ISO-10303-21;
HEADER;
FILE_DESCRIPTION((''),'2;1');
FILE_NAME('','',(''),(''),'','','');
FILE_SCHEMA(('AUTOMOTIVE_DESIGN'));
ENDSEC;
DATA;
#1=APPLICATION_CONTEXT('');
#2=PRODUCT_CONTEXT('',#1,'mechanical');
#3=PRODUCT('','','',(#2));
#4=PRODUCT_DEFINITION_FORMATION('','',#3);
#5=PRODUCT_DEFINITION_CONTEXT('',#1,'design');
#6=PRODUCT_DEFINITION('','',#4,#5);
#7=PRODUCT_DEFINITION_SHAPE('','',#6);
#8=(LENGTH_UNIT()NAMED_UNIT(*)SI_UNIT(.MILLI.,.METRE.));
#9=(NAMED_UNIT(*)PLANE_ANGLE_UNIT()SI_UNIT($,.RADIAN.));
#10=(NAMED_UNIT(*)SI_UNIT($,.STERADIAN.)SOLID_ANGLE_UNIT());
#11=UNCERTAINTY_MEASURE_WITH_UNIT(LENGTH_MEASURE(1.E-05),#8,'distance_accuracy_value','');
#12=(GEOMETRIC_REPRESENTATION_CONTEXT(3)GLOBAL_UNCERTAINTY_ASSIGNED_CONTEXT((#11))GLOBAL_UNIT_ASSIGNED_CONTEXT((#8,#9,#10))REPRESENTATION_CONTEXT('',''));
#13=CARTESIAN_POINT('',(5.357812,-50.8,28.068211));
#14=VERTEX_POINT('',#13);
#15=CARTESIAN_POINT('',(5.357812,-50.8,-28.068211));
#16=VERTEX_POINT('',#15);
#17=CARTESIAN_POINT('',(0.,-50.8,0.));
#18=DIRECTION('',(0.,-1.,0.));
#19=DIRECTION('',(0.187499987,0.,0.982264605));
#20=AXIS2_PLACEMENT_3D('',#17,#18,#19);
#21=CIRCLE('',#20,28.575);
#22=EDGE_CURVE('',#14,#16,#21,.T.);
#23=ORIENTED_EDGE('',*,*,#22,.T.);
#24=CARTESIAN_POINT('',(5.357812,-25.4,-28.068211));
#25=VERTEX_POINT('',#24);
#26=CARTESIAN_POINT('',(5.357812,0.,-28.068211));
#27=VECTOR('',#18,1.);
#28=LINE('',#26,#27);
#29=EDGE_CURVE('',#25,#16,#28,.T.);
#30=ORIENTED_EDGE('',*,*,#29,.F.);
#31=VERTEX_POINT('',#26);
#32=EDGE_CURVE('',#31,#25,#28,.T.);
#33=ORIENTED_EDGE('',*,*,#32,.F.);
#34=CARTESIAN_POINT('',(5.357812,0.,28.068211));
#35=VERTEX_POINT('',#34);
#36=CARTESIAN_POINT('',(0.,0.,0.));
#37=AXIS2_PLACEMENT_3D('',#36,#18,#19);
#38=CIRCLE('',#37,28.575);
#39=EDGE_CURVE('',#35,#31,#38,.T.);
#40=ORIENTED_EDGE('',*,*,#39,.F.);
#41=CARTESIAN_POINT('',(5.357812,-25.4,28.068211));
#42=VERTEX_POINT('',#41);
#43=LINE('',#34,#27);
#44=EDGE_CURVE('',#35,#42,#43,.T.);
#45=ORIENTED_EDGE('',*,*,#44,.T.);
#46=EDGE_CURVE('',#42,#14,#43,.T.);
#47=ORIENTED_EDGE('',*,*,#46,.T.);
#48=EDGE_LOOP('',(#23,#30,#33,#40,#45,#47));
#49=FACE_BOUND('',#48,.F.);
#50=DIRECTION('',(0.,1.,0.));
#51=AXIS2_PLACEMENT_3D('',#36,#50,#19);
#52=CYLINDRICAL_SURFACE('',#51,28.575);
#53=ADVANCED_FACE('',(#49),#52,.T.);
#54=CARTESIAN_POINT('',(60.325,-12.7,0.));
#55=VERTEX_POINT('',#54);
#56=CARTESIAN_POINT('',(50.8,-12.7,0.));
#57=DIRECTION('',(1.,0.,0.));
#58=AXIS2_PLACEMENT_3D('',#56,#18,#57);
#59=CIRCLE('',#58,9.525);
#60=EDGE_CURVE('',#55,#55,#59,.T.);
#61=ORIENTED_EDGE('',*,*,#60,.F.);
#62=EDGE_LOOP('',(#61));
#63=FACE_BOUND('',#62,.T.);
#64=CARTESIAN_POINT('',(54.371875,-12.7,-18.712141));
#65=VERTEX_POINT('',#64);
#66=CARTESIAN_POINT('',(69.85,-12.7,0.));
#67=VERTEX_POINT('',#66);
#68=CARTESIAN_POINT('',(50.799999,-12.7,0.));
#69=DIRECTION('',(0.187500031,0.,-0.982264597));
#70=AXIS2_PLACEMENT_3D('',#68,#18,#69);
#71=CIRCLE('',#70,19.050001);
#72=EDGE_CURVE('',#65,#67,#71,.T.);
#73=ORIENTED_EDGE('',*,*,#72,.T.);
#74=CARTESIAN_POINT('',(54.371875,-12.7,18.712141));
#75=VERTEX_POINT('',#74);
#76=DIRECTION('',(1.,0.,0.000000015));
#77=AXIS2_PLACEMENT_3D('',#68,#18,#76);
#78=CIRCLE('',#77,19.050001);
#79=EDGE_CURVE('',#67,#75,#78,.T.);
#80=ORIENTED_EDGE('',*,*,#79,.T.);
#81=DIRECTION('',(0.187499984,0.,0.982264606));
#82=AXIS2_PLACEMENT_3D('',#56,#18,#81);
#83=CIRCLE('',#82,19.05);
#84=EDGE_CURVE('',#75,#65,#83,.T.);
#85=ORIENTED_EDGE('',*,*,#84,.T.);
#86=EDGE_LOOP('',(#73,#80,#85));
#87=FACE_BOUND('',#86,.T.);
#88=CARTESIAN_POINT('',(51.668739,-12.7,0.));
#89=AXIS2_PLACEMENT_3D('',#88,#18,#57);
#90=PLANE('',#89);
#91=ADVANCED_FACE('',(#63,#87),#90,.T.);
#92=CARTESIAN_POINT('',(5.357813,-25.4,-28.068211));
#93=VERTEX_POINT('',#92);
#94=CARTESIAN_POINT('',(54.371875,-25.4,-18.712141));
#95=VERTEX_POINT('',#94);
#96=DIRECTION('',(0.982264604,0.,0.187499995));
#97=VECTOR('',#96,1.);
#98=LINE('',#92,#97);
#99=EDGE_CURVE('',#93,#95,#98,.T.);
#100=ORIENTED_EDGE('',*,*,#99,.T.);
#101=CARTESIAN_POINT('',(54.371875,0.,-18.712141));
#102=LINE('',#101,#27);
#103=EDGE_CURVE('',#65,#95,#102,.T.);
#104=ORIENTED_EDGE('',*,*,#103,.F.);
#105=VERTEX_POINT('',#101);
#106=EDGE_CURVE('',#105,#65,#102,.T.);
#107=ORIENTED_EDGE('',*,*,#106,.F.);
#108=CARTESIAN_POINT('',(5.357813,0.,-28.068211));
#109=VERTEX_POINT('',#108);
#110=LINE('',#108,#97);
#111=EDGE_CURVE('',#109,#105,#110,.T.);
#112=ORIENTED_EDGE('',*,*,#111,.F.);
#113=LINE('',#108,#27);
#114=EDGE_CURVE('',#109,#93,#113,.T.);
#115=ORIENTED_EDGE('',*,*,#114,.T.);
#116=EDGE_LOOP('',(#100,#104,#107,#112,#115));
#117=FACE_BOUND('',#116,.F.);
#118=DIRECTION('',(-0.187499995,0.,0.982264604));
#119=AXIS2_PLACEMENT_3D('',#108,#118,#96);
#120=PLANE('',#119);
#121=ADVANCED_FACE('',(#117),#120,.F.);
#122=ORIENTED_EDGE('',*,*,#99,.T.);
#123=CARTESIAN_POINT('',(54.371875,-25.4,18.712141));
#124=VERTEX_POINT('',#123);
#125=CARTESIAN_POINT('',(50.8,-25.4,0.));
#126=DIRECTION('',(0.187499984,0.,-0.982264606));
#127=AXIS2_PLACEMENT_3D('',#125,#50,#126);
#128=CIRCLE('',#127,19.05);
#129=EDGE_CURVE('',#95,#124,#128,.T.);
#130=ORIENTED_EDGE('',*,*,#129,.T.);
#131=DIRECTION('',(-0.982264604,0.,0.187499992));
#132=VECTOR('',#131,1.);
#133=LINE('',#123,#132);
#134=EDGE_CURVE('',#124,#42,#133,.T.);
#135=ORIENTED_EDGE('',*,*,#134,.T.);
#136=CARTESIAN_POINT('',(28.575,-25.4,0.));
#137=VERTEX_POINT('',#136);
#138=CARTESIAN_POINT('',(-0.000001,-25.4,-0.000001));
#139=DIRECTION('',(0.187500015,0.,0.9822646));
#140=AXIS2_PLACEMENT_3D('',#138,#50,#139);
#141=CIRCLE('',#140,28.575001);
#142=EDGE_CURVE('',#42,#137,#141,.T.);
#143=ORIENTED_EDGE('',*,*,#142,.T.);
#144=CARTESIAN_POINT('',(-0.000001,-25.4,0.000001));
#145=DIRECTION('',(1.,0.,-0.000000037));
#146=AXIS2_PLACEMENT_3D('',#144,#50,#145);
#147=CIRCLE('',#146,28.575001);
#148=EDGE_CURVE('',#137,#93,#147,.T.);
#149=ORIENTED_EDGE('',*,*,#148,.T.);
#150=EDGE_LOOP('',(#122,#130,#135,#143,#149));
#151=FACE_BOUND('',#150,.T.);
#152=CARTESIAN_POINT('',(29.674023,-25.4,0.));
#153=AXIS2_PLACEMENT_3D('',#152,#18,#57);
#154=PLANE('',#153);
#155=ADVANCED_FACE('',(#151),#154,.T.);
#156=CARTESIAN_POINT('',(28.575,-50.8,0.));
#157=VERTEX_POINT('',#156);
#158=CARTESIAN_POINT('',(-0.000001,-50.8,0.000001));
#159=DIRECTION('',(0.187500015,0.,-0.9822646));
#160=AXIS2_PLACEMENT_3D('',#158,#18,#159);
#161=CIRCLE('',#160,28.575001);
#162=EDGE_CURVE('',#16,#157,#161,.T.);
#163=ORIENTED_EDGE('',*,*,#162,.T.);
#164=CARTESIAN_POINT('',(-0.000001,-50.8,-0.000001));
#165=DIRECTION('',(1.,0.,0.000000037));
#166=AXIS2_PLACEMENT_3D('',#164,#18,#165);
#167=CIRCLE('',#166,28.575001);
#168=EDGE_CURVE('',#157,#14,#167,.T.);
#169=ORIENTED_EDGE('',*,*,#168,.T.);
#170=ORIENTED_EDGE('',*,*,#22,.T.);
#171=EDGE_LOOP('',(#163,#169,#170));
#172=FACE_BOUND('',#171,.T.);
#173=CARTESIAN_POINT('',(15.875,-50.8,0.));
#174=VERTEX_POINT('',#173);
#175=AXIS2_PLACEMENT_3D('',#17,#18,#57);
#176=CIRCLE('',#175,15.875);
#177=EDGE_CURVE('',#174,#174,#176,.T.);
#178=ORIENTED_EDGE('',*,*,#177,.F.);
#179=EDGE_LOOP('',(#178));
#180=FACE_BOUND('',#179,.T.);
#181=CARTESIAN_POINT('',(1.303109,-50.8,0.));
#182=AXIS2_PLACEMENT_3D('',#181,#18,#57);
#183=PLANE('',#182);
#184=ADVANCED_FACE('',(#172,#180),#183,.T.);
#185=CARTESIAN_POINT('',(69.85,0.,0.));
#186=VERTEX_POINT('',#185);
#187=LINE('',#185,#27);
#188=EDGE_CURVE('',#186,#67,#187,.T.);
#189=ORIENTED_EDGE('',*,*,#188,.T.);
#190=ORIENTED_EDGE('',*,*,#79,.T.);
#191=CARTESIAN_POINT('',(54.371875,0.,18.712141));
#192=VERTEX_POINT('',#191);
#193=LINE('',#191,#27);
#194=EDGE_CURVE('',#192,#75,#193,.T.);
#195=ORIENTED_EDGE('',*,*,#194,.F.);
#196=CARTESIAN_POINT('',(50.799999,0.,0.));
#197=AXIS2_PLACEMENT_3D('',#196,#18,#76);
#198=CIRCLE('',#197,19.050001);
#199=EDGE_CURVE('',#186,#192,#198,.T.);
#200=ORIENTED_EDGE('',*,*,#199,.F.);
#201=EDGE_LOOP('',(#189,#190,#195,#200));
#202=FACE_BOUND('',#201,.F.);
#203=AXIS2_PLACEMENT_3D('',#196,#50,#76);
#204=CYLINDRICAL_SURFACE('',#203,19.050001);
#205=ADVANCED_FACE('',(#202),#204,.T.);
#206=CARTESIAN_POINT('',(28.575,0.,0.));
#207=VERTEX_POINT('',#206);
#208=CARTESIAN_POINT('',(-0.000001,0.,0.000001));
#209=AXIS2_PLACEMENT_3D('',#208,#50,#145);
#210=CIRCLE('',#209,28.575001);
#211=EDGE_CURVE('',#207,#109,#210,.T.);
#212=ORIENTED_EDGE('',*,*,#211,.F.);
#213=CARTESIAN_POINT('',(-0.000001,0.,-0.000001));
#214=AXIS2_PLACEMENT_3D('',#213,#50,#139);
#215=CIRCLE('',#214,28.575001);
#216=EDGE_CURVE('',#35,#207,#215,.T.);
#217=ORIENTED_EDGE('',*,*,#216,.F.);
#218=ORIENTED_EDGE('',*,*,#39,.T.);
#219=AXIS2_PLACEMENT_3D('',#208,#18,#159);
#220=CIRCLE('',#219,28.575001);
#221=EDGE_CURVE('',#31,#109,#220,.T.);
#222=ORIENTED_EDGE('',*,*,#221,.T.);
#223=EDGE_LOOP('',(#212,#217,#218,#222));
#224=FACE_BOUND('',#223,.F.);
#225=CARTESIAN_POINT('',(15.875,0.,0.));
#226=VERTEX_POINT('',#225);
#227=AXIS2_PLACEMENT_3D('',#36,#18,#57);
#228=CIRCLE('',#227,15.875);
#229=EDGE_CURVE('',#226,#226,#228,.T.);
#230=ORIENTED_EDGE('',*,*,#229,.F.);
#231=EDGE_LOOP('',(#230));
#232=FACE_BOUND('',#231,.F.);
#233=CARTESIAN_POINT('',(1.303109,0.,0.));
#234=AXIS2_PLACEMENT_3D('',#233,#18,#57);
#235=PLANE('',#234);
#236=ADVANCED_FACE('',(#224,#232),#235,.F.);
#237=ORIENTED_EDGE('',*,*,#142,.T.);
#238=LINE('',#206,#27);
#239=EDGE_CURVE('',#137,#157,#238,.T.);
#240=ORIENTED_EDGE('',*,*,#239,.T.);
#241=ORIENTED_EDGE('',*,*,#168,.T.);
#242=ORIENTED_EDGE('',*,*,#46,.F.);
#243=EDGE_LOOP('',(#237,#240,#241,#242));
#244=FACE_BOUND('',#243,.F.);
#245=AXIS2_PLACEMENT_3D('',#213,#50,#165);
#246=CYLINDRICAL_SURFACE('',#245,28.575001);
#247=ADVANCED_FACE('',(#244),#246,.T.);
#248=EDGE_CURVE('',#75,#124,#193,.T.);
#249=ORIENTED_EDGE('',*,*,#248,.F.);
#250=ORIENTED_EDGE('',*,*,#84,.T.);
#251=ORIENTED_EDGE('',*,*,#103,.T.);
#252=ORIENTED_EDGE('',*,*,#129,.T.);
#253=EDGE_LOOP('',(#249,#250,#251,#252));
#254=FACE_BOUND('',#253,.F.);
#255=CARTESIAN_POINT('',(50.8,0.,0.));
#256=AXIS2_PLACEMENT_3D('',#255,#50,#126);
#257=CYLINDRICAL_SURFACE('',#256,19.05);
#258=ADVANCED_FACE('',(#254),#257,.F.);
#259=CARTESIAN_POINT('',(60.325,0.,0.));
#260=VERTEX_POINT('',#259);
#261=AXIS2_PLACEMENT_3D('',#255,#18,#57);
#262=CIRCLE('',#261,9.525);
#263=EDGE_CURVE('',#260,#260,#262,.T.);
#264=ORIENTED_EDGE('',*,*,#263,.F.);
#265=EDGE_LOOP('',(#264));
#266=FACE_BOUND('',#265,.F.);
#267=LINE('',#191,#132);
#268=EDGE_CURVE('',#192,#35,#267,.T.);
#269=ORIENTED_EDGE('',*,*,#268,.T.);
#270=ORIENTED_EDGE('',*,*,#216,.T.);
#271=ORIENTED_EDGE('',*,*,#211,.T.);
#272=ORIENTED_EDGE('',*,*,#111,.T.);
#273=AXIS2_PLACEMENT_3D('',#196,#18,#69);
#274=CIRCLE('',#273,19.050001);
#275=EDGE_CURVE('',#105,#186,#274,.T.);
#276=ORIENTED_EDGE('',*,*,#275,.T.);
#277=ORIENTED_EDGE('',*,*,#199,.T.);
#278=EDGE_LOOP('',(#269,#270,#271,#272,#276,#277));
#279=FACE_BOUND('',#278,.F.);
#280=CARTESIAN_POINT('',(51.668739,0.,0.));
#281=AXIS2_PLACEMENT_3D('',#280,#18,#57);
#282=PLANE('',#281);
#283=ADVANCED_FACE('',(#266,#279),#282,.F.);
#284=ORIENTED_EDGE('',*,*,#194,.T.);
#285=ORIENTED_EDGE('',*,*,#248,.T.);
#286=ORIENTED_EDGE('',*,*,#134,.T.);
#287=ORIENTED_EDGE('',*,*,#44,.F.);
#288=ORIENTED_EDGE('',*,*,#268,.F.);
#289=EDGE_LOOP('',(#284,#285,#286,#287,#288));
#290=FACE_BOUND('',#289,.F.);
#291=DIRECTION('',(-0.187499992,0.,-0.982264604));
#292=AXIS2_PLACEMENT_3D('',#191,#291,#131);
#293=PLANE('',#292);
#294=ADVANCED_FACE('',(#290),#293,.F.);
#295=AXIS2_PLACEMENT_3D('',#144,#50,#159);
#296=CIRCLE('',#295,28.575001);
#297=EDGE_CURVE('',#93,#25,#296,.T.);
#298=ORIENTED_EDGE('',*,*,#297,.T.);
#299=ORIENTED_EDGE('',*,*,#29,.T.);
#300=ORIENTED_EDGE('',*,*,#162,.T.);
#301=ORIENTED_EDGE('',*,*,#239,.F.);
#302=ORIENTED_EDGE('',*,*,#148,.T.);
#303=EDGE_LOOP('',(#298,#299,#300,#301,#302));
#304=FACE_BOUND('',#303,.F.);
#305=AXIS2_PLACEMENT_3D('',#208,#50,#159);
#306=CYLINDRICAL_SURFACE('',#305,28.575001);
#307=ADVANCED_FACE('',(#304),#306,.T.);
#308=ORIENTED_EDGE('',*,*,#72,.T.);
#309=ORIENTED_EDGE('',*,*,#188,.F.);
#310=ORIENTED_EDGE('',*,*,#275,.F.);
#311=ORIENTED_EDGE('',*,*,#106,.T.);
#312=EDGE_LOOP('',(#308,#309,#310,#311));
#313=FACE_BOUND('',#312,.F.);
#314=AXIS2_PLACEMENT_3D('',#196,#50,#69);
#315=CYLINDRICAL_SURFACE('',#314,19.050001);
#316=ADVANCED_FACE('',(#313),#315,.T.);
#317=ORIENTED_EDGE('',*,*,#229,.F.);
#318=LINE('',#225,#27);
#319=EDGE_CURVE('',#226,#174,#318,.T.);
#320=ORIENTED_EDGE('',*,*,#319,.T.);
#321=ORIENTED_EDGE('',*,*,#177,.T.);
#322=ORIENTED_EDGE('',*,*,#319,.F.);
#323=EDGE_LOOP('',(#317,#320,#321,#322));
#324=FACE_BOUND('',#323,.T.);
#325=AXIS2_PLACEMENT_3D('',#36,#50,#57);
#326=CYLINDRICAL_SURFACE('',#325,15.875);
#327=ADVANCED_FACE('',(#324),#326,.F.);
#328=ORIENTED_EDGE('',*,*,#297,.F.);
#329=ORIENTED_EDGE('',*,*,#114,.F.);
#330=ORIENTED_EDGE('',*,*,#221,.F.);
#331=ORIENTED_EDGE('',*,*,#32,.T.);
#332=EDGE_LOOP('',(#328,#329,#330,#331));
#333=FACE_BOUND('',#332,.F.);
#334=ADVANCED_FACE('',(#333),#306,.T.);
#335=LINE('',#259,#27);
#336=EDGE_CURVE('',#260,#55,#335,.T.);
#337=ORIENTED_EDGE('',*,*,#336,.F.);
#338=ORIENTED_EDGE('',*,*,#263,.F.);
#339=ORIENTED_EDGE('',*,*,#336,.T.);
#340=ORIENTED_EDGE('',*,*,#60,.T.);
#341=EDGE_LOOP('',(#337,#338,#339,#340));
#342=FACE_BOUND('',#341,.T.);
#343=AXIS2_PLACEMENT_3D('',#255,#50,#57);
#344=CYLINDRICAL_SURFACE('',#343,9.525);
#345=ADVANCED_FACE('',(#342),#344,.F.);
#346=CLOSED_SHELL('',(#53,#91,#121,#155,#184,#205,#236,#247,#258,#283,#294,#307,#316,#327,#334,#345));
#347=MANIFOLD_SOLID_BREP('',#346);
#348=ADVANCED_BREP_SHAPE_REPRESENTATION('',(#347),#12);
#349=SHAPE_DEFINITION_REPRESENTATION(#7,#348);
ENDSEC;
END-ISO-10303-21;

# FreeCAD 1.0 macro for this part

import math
import FreeCAD as App
import Part
import Sketcher
from FreeCAD import Vector
Q = App.Units.Quantity

doc = App.newDocument("Part")
body = doc.addObject("PartDesign::Body", "Body")

sketch1 = doc.addObject("Sketcher::SketchObject", "Sketch")
body.addObject(sketch1)
sketch1.AttachmentSupport = (doc.XZ_Plane, [""])
sketch1.MapMode = "FlatFace"
sketch1.addGeometry(Part.ArcOfCircle(Part.Circle(Vector(-0.000001, -0.000001, 0), Vector(0, 0, 1), 28.575001), math.radians(0.000002), math.radians(79.193076)), False)
sketch1.addGeometry(Part.ArcOfCircle(Part.Circle(Vector(-0.000001, 0.000001, 0), Vector(0, 0, 1), 28.575001), math.radians(-79.193074), math.radians(-0.000002)), False)
sketch1.addGeometry(Part.LineSegment(Vector(5.357813, -28.068211, 0), Vector(54.371875, -18.712141, 0)), False)
sketch1.addGeometry(Part.ArcOfCircle(Part.Circle(Vector(50.8, 0, 0), Vector(0, 0, 1), 19.05), math.radians(79.193078), math.radians(280.806922)), False)
sketch1.addGeometry(Part.LineSegment(Vector(54.371875, 18.712141, 0), Vector(5.357812, 28.068211, 0)), False)
sketch1.addConstraint(Sketcher.Constraint("Tangent", 0, 1, 1, 2))
sketch1.addConstraint(Sketcher.Constraint("Tangent", 1, 1, 2, 1))
sketch1.addConstraint(Sketcher.Constraint("Tangent", 2, 2, 3, 2))
sketch1.addConstraint(Sketcher.Constraint("Tangent", 3, 1, 4, 1))
sketch1.addConstraint(Sketcher.Constraint("Tangent", 4, 2, 0, 2))
sketch1.addConstraint(Sketcher.Constraint("Coincident", 0, 3, -1, 1))
sketch1.addConstraint(Sketcher.Constraint("Equal", 0, 1))
sketch1.addConstraint(Sketcher.Constraint("PointOnObject", 3, 3, -1))
sketch1.addConstraint(Sketcher.Constraint("PointOnObject", 0, 1, -1))
sketch1.addConstraint(Sketcher.Constraint("Radius", 3, Q("0.75 in")))
sketch1.addConstraint(Sketcher.Constraint("DistanceX", -1, 1, 3, 3, Q("2 in")))
sketch1.addConstraint(Sketcher.Constraint("Radius", 0, Q("1.125 in")))
pad1 = doc.addObject("PartDesign::Pad", "Pad")
body.addObject(pad1)
pad1.Profile = sketch1
pad1.Length = Q("1 in")

sketch2 = doc.addObject("Sketcher::SketchObject", "Sketch001")
body.addObject(sketch2)
sketch2.AttachmentSupport = (doc.XZ_Plane, [""])
sketch2.MapMode = "FlatFace"
sketch2.addGeometry(Part.ArcOfCircle(Part.Circle(Vector(-0.000001, 0.000001, 0), Vector(0, 0, 1), 28.575001), math.radians(-79.193076), math.radians(-0.000002)), False)
sketch2.addGeometry(Part.ArcOfCircle(Part.Circle(Vector(-0.000001, -0.000001, 0), Vector(0, 0, 1), 28.575001), math.radians(0.000002), math.radians(79.193076)), False)
sketch2.addGeometry(Part.ArcOfCircle(Part.Circle(Vector(0, 0, 0), Vector(0, 0, 1), 28.575), math.radians(79.193078), math.radians(280.806922)), False)
sketch2.addGeometry(Part.Circle(Vector(0, 0, 0), Vector(0, 0, 1), 15.875), False)
sketch2.addConstraint(Sketcher.Constraint("Tangent", 0, 2, 1, 1))
sketch2.addConstraint(Sketcher.Constraint("Tangent", 1, 2, 2, 1))
sketch2.addConstraint(Sketcher.Constraint("Tangent", 2, 2, 0, 1))
sketch2.addConstraint(Sketcher.Constraint("Coincident", 0, 3, -1, 1))
sketch2.addConstraint(Sketcher.Constraint("Coincident", 3, 3, -1, 1))
sketch2.addConstraint(Sketcher.Constraint("PointOnObject", 0, 2, -1))
sketch2.addConstraint(Sketcher.Constraint("Vertical", 1, 2, 2, 2))
sketch2.addConstraint(Sketcher.Constraint("Diameter", 3, Q("1.25 in")))
sketch2.addConstraint(Sketcher.Constraint("Radius", 0, Q("1.125 in")))
sketch2.addConstraint(Sketcher.Constraint("DistanceY", -1, 1, 1, 2, 28.068211))
pad2 = doc.addObject("PartDesign::Pad", "Pad001")
body.addObject(pad2)
pad2.Profile = sketch2
pad2.Length = Q("2 in")

sketch3 = doc.addObject("Sketcher::SketchObject", "Sketch002")
body.addObject(sketch3)
sketch3.AttachmentSupport = (doc.XZ_Plane, [""])
sketch3.MapMode = "FlatFace"
sketch3.addGeometry(Part.ArcOfCircle(Part.Circle(Vector(50.799999, 0, 0), Vector(0, 0, 1), 19.050001), math.radians(0.000001), math.radians(79.193075)), False)
sketch3.addGeometry(Part.ArcOfCircle(Part.Circle(Vector(50.8, 0, 0), Vector(0, 0, 1), 19.05), math.radians(79.193078), math.radians(280.806922)), False)
sketch3.addGeometry(Part.ArcOfCircle(Part.Circle(Vector(50.799999, 0, 0), Vector(0, 0, 1), 19.050001), math.radians(-79.193075), math.radians(-0.000001)), False)
sketch3.addGeometry(Part.Circle(Vector(50.8, 0, 0), Vector(0, 0, 1), 9.525), False)
sketch3.addConstraint(Sketcher.Constraint("Tangent", 0, 2, 1, 1))
sketch3.addConstraint(Sketcher.Constraint("Tangent", 1, 2, 2, 1))
sketch3.addConstraint(Sketcher.Constraint("Tangent", 2, 2, 0, 1))
sketch3.addConstraint(Sketcher.Constraint("Coincident", 3, 3, 0, 3))
sketch3.addConstraint(Sketcher.Constraint("Symmetric", 0, 2, 1, 2, -1))
sketch3.addConstraint(Sketcher.Constraint("PointOnObject", 2, 2, -1))
sketch3.addConstraint(Sketcher.Constraint("Diameter", 3, Q("0.75 in")))
sketch3.addConstraint(Sketcher.Constraint("Radius", 0, Q("0.75 in")))
sketch3.addConstraint(Sketcher.Constraint("DistanceX", -1, 1, 0, 3, Q("2 in")))
sketch3.addConstraint(Sketcher.Constraint("DistanceX", -1, 1, 0, 2, Q("2.140625 in")))
pad3 = doc.addObject("PartDesign::Pad", "Pad002")
body.addObject(pad3)
pad3.Profile = sketch3
pad3.Length = Q("0.5 in")

doc.recompute()
